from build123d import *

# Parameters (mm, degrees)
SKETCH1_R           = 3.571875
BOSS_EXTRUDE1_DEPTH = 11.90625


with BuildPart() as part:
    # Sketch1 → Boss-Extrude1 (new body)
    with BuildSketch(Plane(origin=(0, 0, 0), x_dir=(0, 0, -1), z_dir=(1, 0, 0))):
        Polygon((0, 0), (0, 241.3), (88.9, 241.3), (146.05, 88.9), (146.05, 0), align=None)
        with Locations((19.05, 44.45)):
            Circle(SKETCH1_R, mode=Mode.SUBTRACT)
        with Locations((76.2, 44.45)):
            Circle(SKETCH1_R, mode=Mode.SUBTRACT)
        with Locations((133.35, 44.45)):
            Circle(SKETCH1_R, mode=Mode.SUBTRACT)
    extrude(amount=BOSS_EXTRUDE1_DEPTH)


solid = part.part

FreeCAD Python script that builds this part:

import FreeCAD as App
import Part
import Sketcher

V = App.Vector
Q = App.Units.Quantity

doc = App.newDocument("Part")
body = doc.addObject("PartDesign::Body", "Body")

sketch1 = body.newObject("Sketcher::SketchObject", "Sketch")
sketch1.AttachmentSupport = (doc.getObject("YZ_Plane"), [""])
sketch1.MapMode = "FlatFace"
sketch1.addGeometry([
    Part.LineSegment(V(241.3, 0, 0), V(0, 0, 0)),
    Part.LineSegment(V(0, 0, 0), V(0, -146.1, 0)),
    Part.LineSegment(V(0, -146.1, 0), V(88.9, -146.1, 0)),
    Part.LineSegment(V(88.9, -146.1, 0), V(241.3, -88.9, 0)),
    Part.LineSegment(V(241.3, -88.9, 0), V(241.3, 0, 0)),
    Part.Circle(V(44.5, -133.3, 0), V(0, 0, 1), 3.6),
    Part.Circle(V(44.5, -76.2, 0), V(0, 0, 1), 3.6),
    Part.Circle(V(44.5, -19.1, 0), V(0, 0, 1), 3.6),
], False)
sketch1.addConstraint([
    Sketcher.Constraint("Coincident", 0, 2, 1, 1),
    Sketcher.Constraint("Coincident", 1, 2, 2, 1),
    Sketcher.Constraint("Coincident", 2, 2, 3, 1),
    Sketcher.Constraint("Coincident", 3, 2, 4, 1),
    Sketcher.Constraint("Coincident", 4, 2, 0, 1),
    Sketcher.Constraint("Horizontal", 0),
    Sketcher.Constraint("Vertical", 1),
    Sketcher.Constraint("Horizontal", 2),
    Sketcher.Constraint("Vertical", 4),
    Sketcher.Constraint("Coincident", 0, 2, -1, 1),
    Sketcher.Constraint("Equal", 5, 6),
    Sketcher.Constraint("Equal", 6, 7),
    Sketcher.Constraint("Vertical", 5, 3, 6, 3),
    Sketcher.Constraint("Vertical", 6, 3, 7, 3),
    Sketcher.Constraint("Equal", 2, 4),
    Sketcher.Constraint("Diameter", 5, Q("0.28125 in")),
    Sketcher.Constraint("DistanceX", 0, 2, 0, 1, Q("9.5 in")),
    Sketcher.Constraint("DistanceX", 2, 1, 2, 2, Q("3.5 in")),
    Sketcher.Constraint("DistanceY", 6, 3, -1, 1, Q("3 in")),
    Sketcher.Constraint("DistanceY", 1, 2, 7, 3, Q("5 in")),
    Sketcher.Constraint("DistanceY", 1, 2, 1, 1, Q("5.75 in")),
    Sketcher.Constraint("DistanceY", 5, 3, 7, 3, Q("4.5 in")),
    Sketcher.Constraint("DistanceX", -1, 1, 5, 3, Q("1.75 in")),
])
pad1 = body.newObject("PartDesign::Pad", "Pad")
pad1.Profile = sketch1
pad1.Length = Q("0.46875 in")

doc.recompute()
